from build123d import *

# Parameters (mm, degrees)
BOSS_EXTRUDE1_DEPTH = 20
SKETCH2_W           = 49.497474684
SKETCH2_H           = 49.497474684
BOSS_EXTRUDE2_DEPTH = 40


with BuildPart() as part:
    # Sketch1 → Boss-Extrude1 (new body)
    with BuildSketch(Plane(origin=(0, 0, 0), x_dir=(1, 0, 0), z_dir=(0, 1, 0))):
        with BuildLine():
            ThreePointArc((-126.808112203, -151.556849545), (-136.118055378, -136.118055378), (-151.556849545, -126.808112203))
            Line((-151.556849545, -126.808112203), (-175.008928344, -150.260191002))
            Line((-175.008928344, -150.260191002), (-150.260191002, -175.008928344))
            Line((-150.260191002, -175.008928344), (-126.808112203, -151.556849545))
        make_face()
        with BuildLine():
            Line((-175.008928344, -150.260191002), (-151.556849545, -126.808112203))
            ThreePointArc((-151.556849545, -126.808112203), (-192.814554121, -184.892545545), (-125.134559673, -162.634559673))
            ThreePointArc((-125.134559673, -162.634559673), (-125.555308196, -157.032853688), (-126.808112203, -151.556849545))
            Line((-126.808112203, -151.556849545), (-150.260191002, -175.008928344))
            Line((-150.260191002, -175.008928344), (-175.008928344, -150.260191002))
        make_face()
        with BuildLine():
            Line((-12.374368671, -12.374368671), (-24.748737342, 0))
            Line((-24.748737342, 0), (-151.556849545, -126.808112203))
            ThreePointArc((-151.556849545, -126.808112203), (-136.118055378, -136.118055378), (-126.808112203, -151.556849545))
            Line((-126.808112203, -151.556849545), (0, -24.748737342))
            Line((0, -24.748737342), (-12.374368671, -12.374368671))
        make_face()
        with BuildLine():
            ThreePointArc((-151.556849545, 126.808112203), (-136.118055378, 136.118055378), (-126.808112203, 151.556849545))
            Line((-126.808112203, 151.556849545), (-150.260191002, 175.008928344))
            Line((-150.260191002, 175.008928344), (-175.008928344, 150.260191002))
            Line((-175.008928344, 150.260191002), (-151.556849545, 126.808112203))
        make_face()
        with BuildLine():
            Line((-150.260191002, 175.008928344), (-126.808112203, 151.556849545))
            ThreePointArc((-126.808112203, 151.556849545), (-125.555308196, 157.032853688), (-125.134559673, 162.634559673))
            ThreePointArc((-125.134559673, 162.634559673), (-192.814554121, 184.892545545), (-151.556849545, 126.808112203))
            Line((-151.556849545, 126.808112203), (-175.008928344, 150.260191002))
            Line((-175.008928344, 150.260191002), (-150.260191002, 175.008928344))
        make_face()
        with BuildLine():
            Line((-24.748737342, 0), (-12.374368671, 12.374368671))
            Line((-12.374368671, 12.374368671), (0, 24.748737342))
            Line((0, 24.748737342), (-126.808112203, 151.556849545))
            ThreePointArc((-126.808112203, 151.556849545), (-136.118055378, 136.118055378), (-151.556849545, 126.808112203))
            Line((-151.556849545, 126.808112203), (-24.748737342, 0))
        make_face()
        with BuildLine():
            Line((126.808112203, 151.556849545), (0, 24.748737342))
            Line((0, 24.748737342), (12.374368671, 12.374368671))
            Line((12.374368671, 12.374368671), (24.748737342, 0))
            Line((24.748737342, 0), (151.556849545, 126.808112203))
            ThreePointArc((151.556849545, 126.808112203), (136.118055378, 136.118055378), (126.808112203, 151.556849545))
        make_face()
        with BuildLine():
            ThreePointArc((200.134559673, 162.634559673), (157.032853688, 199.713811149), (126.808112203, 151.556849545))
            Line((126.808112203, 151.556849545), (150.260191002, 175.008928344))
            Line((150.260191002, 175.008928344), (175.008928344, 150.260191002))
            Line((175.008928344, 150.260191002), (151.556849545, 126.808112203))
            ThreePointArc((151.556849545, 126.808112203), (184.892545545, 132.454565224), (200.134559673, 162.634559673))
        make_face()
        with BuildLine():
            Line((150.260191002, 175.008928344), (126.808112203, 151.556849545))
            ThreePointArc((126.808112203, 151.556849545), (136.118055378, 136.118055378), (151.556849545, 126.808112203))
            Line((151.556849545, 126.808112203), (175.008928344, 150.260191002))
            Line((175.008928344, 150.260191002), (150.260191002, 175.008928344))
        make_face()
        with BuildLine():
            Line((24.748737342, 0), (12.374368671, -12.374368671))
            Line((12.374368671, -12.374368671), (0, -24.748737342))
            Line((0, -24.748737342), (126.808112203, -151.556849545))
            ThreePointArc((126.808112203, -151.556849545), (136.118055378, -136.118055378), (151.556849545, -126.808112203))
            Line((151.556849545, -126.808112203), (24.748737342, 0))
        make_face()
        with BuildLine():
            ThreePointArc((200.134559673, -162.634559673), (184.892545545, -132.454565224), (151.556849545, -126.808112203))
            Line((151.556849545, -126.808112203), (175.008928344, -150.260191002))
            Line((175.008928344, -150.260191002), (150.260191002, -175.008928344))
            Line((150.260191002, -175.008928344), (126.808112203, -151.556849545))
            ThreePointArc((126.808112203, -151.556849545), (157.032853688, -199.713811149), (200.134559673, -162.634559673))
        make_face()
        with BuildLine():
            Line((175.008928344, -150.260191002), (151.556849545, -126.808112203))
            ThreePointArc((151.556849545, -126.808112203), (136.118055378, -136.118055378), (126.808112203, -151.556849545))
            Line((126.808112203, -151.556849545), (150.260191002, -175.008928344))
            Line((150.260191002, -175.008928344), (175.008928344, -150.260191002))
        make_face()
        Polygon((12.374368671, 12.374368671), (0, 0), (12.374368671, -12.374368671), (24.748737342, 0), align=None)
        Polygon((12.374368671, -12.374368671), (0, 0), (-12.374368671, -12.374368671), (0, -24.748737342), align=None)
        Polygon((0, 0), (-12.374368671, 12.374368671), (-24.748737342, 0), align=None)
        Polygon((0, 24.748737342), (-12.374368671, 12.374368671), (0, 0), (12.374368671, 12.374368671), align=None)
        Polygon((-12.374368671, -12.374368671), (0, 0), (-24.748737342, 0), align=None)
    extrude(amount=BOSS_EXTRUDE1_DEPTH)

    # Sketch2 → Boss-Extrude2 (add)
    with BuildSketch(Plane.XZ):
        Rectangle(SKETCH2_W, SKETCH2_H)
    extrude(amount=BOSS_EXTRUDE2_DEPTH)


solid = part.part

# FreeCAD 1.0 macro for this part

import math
import FreeCAD as App
import Part
import Sketcher
from FreeCAD import Vector
Q = App.Units.Quantity


def add_polygon(sketch, points):
    """Adds a closed chain of lines whose ends are joined by coincident constraints."""
    first, n = sketch.GeometryCount, len(points)
    for a, b in zip(points, points[1:] + points[:1]):
        sketch.addGeometry(Part.LineSegment(App.Vector(*a, 0), App.Vector(*b, 0)), False)
    for i in range(n):
        sketch.addConstraint(Sketcher.Constraint("Coincident", first + i, 2, first + (i + 1) % n, 1))

doc = App.newDocument("Part")
body = doc.addObject("PartDesign::Body", "Body")

sketch1 = body.newObject("Sketcher::SketchObject", "Sketch")
sketch1.AttachmentSupport = (doc.getObject("XZ_Plane"), [""])
sketch1.MapMode = "FlatFace"
sketch1.addGeometry(Part.LineSegment(Vector(-152, -127, 0), Vector(-25, 0, 0)), False)
sketch1.addGeometry(Part.LineSegment(Vector(-25, 0, 0), Vector(-152, 127, 0)), False)
sketch1.addGeometry(Part.ArcOfCircle(Part.Circle(Vector(-163, 163, 0), Vector(0, 0, 1), 38), math.radians(0), math.radians(287)), False)
sketch1.addGeometry(Part.ArcOfCircle(Part.Circle(Vector(-163, 163, 0), Vector(0, 0, 1), 37), math.radians(-17.18), math.radians(0)), False)
sketch1.addGeometry(Part.LineSegment(Vector(-127, 152, 0), Vector(0, 25, 0)), False)
sketch1.addGeometry(Part.LineSegment(Vector(0, 25, 0), Vector(127, 152, 0)), False)
sketch1.addGeometry(Part.ArcOfCircle(Part.Circle(Vector(163, 163, 0), Vector(0, 0, 1), 38), math.radians(0), math.radians(197)), False)
sketch1.addGeometry(Part.ArcOfCircle(Part.Circle(Vector(163, 163, 0), Vector(0, 0, 1), 38), math.radians(-107), math.radians(0)), False)
sketch1.addGeometry(Part.LineSegment(Vector(152, 127, 0), Vector(25, 0, 0)), False)
sketch1.addGeometry(Part.LineSegment(Vector(25, 0, 0), Vector(152, -127, 0)), False)
sketch1.addGeometry(Part.ArcOfCircle(Part.Circle(Vector(163, -163, 0), Vector(0, 0, 1), 38), math.radians(0), math.radians(107)), False)
sketch1.addGeometry(Part.ArcOfCircle(Part.Circle(Vector(163, -163, 0), Vector(0, 0, 1), 38), math.radians(163), math.radians(360)), False)
sketch1.addGeometry(Part.LineSegment(Vector(127, -152, 0), Vector(0, -25, 0)), False)
sketch1.addGeometry(Part.LineSegment(Vector(0, -25, 0), Vector(-127, -152, 0)), False)
sketch1.addGeometry(Part.ArcOfCircle(Part.Circle(Vector(-163, -163, 0), Vector(0, 0, 1), 37), math.radians(0), math.radians(17.18)), False)
sketch1.addGeometry(Part.ArcOfCircle(Part.Circle(Vector(-163, -163, 0), Vector(0, 0, 1), 38), math.radians(73), math.radians(360)), False)
sketch1.addConstraint(Sketcher.Constraint("Coincident", 0, 2, 1, 1))
sketch1.addConstraint(Sketcher.Constraint("Coincident", 1, 2, 2, 2))
sketch1.addConstraint(Sketcher.Constraint("Tangent", 2, 1, 3, 2))
sketch1.addConstraint(Sketcher.Constraint("Coincident", 3, 1, 4, 1))
sketch1.addConstraint(Sketcher.Constraint("Coincident", 4, 2, 5, 1))
sketch1.addConstraint(Sketcher.Constraint("Coincident", 5, 2, 6, 2))
sketch1.addConstraint(Sketcher.Constraint("Tangent", 6, 1, 7, 2))
sketch1.addConstraint(Sketcher.Constraint("Coincident", 7, 1, 8, 1))
sketch1.addConstraint(Sketcher.Constraint("Coincident", 8, 2, 9, 1))
sketch1.addConstraint(Sketcher.Constraint("Coincident", 9, 2, 10, 2))
sketch1.addConstraint(Sketcher.Constraint("Tangent", 10, 1, 11, 2))
sketch1.addConstraint(Sketcher.Constraint("Coincident", 11, 1, 12, 1))
sketch1.addConstraint(Sketcher.Constraint("Coincident", 12, 2, 13, 1))
sketch1.addConstraint(Sketcher.Constraint("Coincident", 13, 2, 14, 2))
sketch1.addConstraint(Sketcher.Constraint("Tangent", 14, 1, 15, 2))
sketch1.addConstraint(Sketcher.Constraint("Coincident", 15, 1, 0, 1))
sketch1.addConstraint(Sketcher.Constraint("Equal", 2, 3))
sketch1.addConstraint(Sketcher.Constraint("Equal", 3, 6))
sketch1.addConstraint(Sketcher.Constraint("Equal", 6, 7))
sketch1.addConstraint(Sketcher.Constraint("Equal", 7, 10))
sketch1.addConstraint(Sketcher.Constraint("Equal", 10, 11))
sketch1.addConstraint(Sketcher.Constraint("Equal", 11, 14))
sketch1.addConstraint(Sketcher.Constraint("Equal", 14, 15))
sketch1.addConstraint(Sketcher.Constraint("Symmetric", 2, 3, 10, 3, -1, 1))
sketch1.addConstraint(Sketcher.Constraint("Symmetric", 6, 3, 14, 3, -1, 1))
sketch1.addConstraint(Sketcher.Constraint("Symmetric", 0, 2, 8, 2, -1, 1))
sketch1.addConstraint(Sketcher.Constraint("Symmetric", 4, 2, 12, 2, -1, 1))
sketch1.addConstraint(Sketcher.Constraint("Symmetric", 2, 3, 6, 3, -2))
sketch1.addConstraint(Sketcher.Constraint("PointOnObject", 0, 2, -1))
sketch1.addConstraint(Sketcher.Constraint("PointOnObject", 4, 2, -2))
sketch1.addConstraint(Sketcher.Constraint("Perpendicular", 0, 1))
sketch1.addConstraint(Sketcher.Constraint("Parallel", 1, 4))
sketch1.addConstraint(Sketcher.Constraint("Perpendicular", 4, 5))
sketch1.addConstraint(Sketcher.Constraint("Parallel", 5, 8))
sketch1.addConstraint(Sketcher.Constraint("Perpendicular", 8, 9))
sketch1.addConstraint(Sketcher.Constraint("Parallel", 9, 12))
sketch1.addConstraint(Sketcher.Constraint("Perpendicular", 12, 13))
sketch1.addConstraint(Sketcher.Constraint("Horizontal", 7, 3, 2, 1))
sketch1.addConstraint(Sketcher.Constraint("Horizontal", 3, 1, 5, 2))
sketch1.addConstraint(Sketcher.Constraint("Horizontal", 2, 1, 6, 1))
sketch1.addConstraint(Sketcher.Constraint("Horizontal", 15, 3, 10, 1))
sketch1.addConstraint(Sketcher.Constraint("Horizontal", 10, 1, 14, 1))
sketch1.addConstraint(Sketcher.Constraint("Equal", 1, 4))
sketch1.addConstraint(Sketcher.Constraint("Radius", 2, Q("37.5 mm")))
sketch1.addConstraint(Sketcher.Constraint("DistanceX", 2, 3, -1, 1, Q("162.63456 mm")))
sketch1.addConstraint(Sketcher.Constraint("DistanceY", -1, 1, 2, 3, Q("162.63456 mm")))
sketch1.addConstraint(Sketcher.Constraint("DistanceX", 1, 2, -1, 1, Q("151.55685 mm")))
pad1 = body.newObject("PartDesign::Pad", "Pad")
pad1.Profile = sketch1
pad1.Length = 20
pad1.Reversed = True

sketch2 = body.newObject("Sketcher::SketchObject", "Sketch001")
sketch2.AttachmentSupport = (doc.getObject("XZ_Plane"), [""])
sketch2.MapMode = "FlatFace"
add_polygon(sketch2, [(-25, 25), (-25, -25), (25, -25), (25, 25)])
sketch2.addConstraint(Sketcher.Constraint("Vertical", 0))
sketch2.addConstraint(Sketcher.Constraint("Horizontal", 1))
sketch2.addConstraint(Sketcher.Constraint("Vertical", 2))
sketch2.addConstraint(Sketcher.Constraint("Horizontal", 3))
sketch2.addConstraint(Sketcher.Constraint("Symmetric", 0, 2, 2, 2, -1, 1))
sketch2.addConstraint(Sketcher.Constraint("Equal", 3, 0))
sketch2.addConstraint(Sketcher.Constraint("DistanceX", 1, 1, 1, 2, Q("49.497475 mm")))
pad2 = body.newObject("PartDesign::Pad", "Pad001")
pad2.Profile = sketch2
pad2.Length = 40

doc.recompute()
